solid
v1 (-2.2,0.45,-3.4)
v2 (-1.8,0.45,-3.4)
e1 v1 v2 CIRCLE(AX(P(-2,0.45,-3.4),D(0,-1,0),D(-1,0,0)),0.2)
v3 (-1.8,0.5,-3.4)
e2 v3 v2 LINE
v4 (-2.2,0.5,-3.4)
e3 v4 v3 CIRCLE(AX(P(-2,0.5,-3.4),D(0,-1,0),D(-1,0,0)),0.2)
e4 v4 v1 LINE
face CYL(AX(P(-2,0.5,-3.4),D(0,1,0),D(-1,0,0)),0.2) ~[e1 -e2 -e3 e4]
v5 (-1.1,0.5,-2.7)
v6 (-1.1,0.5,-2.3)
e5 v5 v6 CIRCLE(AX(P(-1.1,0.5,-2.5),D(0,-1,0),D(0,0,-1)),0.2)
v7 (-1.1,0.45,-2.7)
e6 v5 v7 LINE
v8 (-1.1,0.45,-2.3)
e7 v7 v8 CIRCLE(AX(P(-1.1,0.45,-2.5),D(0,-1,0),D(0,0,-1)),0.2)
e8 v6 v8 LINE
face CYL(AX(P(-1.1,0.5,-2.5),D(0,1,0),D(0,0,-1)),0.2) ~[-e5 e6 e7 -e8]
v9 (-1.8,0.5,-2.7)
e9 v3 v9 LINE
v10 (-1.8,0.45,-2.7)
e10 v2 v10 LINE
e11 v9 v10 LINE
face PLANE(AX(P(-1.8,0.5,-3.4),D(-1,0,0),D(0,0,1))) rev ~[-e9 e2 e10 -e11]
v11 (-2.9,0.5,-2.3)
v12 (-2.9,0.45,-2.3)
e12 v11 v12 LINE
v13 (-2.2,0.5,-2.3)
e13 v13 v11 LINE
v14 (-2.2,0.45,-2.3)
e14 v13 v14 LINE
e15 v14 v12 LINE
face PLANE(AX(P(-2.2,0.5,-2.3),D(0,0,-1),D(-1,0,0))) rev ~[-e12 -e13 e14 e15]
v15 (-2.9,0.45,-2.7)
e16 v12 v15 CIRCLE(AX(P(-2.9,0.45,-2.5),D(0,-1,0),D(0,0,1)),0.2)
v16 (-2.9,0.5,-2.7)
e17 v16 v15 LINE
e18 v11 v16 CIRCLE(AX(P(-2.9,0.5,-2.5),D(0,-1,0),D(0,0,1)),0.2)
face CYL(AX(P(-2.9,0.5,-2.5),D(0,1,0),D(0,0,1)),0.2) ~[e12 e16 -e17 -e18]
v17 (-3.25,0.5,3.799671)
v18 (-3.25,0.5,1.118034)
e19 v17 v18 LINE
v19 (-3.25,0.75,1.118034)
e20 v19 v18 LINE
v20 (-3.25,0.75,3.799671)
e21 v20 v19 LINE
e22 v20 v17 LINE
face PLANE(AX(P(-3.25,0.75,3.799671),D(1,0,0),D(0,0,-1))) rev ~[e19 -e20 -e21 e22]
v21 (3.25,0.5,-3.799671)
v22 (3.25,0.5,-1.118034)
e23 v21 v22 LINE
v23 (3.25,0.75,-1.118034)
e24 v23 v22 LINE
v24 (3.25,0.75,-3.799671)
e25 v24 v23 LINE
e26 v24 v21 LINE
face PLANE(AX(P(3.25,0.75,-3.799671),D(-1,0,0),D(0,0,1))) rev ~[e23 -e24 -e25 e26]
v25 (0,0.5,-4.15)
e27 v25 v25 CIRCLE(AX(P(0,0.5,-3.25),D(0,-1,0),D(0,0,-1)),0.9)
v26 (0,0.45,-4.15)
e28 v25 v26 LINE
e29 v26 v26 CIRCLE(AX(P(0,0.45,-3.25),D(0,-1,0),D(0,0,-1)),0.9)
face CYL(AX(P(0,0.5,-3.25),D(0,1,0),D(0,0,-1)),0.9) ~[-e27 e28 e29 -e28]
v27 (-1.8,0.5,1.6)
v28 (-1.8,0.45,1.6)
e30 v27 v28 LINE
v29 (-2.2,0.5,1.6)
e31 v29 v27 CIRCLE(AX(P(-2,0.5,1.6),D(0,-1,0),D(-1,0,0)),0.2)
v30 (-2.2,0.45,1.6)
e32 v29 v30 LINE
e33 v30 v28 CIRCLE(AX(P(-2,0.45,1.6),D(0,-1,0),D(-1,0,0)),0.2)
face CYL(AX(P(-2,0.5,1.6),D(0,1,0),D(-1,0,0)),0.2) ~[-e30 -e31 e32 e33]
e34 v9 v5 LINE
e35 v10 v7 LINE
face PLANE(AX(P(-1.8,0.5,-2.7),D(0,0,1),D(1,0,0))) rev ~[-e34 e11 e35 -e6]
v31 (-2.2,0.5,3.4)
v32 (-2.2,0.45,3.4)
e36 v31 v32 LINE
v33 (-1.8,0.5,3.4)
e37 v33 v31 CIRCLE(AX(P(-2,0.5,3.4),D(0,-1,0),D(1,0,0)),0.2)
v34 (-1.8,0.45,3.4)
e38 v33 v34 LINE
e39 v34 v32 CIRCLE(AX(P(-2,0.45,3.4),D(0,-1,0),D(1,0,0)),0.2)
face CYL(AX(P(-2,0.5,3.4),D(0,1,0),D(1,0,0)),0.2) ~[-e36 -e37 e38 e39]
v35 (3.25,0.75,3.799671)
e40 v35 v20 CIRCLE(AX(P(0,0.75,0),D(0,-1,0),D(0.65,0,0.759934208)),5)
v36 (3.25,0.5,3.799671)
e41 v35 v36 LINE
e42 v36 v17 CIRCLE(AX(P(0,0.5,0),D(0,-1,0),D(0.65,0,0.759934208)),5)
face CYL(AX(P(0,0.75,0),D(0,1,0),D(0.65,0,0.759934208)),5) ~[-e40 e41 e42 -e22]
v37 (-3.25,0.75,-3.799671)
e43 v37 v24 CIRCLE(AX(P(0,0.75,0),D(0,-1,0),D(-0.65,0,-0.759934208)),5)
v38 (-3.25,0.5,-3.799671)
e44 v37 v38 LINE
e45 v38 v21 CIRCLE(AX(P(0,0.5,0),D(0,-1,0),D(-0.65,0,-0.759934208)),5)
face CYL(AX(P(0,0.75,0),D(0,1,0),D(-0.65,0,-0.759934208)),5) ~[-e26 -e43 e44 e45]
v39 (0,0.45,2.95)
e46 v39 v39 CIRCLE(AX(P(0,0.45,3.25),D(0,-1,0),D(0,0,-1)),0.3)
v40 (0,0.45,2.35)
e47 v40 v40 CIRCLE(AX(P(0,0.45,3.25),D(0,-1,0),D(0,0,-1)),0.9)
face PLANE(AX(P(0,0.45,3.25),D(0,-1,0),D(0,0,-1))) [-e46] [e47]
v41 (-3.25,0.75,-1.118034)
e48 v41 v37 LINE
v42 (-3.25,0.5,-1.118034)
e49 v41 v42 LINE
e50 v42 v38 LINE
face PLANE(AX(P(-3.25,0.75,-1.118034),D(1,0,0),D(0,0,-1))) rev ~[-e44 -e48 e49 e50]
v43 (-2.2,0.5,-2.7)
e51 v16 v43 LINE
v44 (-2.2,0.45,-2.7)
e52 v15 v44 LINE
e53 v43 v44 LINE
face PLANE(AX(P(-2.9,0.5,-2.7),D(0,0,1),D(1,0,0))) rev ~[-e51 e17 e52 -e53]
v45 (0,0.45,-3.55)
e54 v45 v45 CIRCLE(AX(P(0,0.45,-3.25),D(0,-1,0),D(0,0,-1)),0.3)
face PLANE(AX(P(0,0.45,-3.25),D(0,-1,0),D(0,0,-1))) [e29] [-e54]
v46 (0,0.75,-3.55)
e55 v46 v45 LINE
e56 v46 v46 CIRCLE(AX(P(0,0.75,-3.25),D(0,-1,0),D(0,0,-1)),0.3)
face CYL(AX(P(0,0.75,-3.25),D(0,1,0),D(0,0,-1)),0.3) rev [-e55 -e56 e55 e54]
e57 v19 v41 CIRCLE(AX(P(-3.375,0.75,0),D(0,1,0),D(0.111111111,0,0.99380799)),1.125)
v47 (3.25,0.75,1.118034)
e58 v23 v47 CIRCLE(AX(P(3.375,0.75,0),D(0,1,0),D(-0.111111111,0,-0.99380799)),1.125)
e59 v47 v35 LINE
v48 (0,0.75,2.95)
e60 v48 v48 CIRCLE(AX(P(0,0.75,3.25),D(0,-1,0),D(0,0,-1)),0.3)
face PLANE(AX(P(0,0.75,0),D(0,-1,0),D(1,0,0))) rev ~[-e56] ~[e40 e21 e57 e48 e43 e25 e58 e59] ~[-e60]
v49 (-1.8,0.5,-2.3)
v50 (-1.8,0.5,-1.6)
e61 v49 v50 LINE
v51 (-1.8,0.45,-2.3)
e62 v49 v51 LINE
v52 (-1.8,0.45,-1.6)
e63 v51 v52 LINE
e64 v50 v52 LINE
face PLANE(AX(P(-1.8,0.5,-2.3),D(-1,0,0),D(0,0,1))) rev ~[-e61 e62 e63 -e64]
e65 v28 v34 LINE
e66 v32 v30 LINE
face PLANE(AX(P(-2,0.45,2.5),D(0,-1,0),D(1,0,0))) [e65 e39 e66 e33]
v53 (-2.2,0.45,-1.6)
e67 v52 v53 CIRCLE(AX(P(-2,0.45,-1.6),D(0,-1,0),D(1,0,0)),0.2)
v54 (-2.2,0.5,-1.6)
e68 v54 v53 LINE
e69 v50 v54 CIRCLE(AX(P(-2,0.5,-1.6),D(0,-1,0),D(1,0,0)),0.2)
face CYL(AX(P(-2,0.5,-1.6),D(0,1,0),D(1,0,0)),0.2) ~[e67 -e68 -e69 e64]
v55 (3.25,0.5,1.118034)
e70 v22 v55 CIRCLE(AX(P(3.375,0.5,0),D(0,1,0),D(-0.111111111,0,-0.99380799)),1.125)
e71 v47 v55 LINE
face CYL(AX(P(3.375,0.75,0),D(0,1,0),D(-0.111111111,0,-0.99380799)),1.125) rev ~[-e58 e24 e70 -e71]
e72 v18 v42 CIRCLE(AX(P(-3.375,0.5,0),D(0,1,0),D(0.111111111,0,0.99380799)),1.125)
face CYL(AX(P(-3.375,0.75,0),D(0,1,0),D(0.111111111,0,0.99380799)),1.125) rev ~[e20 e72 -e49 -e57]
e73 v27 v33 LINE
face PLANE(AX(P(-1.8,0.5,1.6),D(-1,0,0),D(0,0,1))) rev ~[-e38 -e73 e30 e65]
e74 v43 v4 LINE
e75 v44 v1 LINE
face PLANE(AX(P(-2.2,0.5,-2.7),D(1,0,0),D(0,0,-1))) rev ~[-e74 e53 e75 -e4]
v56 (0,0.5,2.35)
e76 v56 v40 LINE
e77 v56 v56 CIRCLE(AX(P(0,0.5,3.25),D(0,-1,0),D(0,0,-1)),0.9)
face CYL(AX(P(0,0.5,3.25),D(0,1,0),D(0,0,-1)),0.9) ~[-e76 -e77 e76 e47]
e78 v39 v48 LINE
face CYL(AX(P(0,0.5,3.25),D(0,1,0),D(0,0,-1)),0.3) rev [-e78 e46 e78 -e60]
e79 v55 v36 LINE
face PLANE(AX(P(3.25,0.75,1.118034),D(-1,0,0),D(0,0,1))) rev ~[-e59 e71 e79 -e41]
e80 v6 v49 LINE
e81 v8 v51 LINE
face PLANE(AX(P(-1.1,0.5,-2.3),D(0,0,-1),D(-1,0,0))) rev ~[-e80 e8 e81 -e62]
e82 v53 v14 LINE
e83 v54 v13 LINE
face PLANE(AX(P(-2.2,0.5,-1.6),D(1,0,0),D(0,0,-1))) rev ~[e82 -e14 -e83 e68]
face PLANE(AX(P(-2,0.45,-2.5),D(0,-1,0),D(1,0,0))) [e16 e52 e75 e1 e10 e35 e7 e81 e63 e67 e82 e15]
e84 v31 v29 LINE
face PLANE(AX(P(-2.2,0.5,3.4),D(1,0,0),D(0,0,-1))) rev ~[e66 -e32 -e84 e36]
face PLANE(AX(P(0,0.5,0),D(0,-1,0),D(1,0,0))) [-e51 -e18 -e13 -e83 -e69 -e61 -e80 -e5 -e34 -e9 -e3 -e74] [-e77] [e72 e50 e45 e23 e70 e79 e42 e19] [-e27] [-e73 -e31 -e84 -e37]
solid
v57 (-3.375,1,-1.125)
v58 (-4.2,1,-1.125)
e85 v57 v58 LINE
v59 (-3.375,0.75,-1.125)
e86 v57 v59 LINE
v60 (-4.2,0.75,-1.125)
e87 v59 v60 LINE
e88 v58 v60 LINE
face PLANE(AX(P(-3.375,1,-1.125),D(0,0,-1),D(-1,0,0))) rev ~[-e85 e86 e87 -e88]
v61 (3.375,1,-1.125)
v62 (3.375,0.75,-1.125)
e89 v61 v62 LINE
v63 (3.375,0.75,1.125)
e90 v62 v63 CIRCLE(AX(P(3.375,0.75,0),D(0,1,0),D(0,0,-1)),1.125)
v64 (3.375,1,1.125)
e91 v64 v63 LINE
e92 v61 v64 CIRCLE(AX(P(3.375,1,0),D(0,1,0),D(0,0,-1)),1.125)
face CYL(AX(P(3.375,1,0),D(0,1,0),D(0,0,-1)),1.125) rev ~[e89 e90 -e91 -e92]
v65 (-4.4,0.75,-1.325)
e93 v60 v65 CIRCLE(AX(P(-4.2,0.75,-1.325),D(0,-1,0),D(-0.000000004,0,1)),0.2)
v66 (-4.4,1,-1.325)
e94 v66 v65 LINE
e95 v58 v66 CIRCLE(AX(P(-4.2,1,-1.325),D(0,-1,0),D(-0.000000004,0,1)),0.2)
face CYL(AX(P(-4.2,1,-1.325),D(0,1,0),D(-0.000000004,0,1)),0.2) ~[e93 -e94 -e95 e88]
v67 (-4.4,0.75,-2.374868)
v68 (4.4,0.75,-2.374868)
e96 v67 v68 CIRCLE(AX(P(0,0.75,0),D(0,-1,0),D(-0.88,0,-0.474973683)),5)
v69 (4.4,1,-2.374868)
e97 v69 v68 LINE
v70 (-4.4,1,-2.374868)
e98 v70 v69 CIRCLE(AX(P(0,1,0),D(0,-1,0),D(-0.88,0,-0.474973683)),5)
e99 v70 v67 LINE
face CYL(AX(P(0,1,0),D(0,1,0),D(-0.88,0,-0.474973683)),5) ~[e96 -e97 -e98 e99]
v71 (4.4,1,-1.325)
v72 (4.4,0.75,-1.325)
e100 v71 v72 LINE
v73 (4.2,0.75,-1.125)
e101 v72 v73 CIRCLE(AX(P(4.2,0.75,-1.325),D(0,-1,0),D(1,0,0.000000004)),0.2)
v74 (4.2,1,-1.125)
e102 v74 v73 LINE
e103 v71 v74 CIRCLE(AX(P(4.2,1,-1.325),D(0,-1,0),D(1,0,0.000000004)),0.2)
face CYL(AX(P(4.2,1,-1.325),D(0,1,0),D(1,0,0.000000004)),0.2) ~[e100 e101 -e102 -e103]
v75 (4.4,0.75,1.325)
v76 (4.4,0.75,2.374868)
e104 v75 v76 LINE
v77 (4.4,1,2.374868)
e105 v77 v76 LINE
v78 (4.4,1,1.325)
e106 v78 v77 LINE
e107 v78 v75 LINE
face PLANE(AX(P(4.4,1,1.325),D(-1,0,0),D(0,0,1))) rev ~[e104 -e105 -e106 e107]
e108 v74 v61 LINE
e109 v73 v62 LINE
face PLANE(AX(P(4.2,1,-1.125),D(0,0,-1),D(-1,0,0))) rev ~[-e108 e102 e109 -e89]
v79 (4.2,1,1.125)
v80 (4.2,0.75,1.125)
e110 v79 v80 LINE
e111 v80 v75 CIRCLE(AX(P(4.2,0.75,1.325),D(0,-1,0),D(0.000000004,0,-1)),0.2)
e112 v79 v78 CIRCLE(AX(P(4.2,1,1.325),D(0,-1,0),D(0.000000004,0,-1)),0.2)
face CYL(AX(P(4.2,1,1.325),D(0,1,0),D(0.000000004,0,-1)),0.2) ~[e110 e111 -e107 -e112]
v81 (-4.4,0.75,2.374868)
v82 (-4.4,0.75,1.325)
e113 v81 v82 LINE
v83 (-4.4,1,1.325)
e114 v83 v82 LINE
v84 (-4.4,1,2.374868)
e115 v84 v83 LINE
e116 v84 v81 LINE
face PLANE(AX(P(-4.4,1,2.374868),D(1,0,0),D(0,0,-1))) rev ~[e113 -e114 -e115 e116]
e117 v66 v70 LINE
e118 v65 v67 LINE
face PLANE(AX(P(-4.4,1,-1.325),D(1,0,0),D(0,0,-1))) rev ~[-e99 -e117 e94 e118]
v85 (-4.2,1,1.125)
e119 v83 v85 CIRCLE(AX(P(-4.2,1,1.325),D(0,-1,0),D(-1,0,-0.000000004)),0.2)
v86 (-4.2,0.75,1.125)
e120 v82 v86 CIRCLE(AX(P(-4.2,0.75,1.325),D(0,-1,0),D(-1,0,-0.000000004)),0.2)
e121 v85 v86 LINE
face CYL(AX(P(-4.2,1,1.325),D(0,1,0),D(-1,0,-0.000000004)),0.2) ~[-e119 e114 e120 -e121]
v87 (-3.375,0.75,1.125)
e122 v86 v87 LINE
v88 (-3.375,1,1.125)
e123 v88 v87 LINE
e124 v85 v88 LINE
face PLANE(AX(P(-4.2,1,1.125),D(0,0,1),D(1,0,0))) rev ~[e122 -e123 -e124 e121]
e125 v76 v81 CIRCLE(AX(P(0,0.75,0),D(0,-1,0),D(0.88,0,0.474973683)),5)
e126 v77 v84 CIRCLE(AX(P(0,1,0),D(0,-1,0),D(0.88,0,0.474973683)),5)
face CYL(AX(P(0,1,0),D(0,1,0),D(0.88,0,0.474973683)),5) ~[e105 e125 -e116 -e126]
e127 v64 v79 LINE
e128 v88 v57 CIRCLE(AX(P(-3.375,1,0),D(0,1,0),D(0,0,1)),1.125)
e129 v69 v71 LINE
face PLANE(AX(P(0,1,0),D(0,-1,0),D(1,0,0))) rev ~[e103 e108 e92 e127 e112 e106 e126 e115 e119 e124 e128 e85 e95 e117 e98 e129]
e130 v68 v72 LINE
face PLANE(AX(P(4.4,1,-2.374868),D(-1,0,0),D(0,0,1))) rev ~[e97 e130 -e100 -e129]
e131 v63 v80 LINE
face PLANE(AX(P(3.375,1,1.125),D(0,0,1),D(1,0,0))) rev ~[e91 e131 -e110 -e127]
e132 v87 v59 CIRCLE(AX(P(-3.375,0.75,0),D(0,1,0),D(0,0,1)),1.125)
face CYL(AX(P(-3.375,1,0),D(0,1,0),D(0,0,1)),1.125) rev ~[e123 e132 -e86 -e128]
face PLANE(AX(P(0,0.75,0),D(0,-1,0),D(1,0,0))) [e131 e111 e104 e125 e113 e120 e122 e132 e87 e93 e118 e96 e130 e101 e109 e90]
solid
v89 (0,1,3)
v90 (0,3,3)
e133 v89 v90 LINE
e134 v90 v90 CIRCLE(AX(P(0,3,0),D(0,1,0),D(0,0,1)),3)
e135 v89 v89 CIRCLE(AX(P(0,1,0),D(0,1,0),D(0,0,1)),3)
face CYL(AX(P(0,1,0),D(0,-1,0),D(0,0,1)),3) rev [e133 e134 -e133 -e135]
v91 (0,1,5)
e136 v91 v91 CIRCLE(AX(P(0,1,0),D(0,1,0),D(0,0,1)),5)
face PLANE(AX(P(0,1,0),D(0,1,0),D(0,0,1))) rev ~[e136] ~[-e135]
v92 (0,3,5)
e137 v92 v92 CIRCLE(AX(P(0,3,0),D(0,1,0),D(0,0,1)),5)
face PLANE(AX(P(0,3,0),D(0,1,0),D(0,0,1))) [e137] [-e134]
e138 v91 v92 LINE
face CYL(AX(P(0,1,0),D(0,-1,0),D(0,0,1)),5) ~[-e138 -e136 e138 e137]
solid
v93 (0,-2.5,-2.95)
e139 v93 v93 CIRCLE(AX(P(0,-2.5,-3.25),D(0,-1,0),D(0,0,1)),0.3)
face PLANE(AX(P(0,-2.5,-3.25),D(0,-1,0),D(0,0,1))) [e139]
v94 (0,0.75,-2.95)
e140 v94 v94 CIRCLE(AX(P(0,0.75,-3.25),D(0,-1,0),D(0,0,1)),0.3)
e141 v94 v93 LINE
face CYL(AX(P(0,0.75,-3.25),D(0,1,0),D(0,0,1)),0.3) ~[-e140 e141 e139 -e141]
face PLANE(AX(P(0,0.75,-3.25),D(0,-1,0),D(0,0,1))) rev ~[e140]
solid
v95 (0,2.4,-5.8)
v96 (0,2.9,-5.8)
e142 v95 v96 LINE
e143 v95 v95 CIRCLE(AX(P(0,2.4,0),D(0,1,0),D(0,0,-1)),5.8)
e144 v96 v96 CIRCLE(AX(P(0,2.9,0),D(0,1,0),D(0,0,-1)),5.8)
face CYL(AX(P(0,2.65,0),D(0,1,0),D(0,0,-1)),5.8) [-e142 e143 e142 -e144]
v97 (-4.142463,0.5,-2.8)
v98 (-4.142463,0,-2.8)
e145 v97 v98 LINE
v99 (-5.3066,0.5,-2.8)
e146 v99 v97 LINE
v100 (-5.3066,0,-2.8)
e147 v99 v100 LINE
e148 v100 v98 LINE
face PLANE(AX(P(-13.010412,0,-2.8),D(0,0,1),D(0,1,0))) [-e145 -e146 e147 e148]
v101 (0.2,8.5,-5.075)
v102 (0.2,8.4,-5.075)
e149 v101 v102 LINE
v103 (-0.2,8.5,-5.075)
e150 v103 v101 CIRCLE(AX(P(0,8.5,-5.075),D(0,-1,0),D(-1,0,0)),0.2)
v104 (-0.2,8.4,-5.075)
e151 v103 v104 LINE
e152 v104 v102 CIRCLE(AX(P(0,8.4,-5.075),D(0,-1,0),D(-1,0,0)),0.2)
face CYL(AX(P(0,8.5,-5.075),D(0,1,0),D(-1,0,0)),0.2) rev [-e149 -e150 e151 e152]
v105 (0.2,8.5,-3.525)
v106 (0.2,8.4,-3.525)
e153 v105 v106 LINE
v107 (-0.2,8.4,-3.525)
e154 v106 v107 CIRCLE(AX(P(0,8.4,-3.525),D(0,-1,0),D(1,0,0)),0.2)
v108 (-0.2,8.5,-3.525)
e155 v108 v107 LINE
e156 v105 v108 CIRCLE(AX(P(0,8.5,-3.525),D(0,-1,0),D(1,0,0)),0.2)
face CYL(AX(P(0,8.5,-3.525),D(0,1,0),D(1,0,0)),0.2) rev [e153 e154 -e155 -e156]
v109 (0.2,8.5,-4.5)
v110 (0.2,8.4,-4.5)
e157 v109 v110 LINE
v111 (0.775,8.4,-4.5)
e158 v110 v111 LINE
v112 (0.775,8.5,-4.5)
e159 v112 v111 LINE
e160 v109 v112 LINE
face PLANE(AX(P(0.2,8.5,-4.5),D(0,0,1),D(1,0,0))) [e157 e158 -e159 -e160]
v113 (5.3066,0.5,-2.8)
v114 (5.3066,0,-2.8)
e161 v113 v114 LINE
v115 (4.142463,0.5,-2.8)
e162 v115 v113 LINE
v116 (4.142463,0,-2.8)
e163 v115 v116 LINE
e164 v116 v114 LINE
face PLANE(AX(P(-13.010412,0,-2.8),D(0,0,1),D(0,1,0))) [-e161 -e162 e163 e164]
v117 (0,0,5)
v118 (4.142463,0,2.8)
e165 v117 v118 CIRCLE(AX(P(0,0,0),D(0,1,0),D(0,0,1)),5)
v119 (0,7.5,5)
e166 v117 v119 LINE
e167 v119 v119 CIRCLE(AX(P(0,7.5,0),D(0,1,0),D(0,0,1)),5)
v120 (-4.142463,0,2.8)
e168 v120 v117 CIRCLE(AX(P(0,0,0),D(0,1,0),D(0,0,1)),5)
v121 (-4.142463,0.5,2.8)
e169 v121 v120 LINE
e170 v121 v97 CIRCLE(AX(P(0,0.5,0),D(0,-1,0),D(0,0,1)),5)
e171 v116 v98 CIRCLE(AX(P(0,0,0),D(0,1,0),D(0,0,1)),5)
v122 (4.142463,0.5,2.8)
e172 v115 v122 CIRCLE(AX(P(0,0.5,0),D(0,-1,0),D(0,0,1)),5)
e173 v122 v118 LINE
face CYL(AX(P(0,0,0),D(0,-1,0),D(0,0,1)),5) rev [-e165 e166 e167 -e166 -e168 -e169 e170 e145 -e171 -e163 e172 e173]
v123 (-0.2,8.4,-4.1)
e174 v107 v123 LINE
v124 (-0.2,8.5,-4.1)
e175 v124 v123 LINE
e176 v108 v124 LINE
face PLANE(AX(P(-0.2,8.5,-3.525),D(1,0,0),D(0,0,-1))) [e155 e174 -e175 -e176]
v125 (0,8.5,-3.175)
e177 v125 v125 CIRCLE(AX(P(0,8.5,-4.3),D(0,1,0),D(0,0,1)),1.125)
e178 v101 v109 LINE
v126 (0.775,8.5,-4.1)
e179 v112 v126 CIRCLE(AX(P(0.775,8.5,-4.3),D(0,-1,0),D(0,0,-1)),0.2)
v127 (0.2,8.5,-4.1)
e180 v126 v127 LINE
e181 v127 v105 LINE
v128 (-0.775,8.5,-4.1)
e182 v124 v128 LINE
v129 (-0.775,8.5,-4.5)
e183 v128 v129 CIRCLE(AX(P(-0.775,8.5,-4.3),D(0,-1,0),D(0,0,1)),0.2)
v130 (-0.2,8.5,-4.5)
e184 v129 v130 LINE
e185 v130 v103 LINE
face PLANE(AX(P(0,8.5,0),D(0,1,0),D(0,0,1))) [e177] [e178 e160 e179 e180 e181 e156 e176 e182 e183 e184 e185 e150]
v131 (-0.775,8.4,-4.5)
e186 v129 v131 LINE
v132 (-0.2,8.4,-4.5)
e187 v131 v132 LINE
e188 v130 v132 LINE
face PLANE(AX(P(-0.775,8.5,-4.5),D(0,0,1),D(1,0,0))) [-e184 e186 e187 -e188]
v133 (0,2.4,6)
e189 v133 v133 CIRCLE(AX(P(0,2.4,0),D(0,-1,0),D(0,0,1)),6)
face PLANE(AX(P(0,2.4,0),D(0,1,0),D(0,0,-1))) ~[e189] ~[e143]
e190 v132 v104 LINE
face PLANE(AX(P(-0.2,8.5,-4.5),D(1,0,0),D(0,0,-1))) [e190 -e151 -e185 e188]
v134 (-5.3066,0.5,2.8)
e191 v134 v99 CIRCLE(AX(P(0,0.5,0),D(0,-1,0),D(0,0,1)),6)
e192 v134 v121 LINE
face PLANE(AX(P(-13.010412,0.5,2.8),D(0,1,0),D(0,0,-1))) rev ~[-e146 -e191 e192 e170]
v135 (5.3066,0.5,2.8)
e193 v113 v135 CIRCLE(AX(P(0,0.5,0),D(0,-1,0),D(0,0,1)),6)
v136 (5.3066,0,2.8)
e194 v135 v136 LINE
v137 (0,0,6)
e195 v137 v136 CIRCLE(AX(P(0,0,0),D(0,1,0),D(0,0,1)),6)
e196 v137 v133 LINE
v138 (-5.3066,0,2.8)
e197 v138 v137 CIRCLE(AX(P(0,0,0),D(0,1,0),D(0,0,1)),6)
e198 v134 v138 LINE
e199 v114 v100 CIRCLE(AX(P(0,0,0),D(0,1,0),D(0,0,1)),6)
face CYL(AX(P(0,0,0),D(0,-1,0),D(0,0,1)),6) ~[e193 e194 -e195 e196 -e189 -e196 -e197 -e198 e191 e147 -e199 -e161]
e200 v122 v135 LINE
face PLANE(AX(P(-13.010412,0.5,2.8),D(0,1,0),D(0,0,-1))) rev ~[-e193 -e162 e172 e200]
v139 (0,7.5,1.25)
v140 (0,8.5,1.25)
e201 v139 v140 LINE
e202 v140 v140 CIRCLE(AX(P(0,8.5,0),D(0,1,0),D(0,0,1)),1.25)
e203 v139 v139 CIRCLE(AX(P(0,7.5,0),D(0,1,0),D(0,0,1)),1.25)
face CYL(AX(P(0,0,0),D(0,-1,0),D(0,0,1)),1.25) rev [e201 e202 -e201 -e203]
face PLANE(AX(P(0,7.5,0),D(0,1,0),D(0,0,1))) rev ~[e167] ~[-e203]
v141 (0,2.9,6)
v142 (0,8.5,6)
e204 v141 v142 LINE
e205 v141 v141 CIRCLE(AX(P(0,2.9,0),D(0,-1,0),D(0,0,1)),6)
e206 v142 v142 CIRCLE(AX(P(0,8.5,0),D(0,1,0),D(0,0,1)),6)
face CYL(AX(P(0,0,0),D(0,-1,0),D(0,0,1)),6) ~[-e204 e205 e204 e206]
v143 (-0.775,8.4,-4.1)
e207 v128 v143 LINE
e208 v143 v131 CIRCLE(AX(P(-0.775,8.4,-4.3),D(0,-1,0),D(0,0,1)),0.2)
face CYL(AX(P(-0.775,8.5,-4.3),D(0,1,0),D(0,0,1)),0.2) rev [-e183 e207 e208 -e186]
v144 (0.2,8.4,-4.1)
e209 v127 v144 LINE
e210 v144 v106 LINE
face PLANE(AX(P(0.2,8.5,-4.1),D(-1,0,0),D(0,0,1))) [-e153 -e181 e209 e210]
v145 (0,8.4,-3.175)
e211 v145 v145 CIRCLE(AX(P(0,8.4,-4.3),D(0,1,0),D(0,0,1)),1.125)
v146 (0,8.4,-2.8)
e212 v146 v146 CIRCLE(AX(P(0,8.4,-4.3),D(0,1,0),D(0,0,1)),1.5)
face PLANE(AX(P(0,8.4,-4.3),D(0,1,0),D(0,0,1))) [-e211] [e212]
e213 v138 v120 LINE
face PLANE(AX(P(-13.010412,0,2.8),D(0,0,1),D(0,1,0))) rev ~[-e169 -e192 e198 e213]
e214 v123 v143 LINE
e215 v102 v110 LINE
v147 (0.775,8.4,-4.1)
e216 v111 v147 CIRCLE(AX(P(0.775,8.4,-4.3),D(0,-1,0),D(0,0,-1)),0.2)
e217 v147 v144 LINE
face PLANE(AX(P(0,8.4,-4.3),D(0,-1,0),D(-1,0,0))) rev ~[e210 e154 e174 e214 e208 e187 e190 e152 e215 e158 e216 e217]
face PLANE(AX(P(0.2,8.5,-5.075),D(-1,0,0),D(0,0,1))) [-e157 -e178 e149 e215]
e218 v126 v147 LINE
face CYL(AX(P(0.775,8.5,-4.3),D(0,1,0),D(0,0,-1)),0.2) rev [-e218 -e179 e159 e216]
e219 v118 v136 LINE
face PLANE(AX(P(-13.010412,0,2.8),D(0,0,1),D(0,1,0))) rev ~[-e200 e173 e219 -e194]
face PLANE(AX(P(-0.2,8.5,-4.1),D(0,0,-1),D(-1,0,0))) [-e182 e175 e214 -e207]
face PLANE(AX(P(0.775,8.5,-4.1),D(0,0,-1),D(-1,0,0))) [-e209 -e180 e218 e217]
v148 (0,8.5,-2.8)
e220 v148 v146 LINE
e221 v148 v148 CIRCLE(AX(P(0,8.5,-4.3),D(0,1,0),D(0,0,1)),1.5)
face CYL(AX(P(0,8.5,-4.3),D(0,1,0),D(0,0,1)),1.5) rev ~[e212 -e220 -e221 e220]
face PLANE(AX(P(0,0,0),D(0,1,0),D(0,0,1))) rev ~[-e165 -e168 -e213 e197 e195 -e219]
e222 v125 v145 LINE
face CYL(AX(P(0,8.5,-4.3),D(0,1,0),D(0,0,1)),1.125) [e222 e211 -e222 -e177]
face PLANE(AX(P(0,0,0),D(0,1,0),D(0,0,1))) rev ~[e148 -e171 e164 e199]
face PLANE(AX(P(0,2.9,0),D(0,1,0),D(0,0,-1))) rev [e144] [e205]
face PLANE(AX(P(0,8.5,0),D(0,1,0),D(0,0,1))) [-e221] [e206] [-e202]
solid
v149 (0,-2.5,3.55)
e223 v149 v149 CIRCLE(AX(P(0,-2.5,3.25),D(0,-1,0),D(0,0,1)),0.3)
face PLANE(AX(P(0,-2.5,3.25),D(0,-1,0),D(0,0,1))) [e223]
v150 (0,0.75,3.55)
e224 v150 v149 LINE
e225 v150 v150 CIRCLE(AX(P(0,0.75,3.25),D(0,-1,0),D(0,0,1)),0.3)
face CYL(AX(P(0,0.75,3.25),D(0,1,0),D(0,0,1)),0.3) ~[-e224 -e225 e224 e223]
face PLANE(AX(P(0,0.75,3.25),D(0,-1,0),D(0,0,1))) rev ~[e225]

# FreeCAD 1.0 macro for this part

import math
import FreeCAD as App
import Part
import Sketcher
Q = App.Units.Quantity

doc = App.newDocument("Part")
body = doc.addObject("PartDesign::Body", "Body")

# Sketch on XZ plane
sketch1 = doc.addObject("Sketcher::SketchObject", "Sketch")
body.addObject(sketch1)
sketch1.AttachmentSupport = (doc.XZ_Plane, [""])
sketch1.MapMode = "FlatFace"
sketch1.addGeometry([
    Part.Circle(App.Vector(0, 0, 0), App.Vector(0, 0, 1), 6),
    Part.Circle(App.Vector(0, 0, 0), App.Vector(0, 0, 1), 1.2),
], False)
sketch1.addConstraint([
    Sketcher.Constraint("Coincident", 0, 3, -1, 1),
    Sketcher.Constraint("Coincident", 1, 3, -1, 1),
    Sketcher.Constraint("Diameter", 0, Q("12 mm")),
    Sketcher.Constraint("Diameter", 1, Q("2.5 mm")),
])
pad1 = doc.addObject("PartDesign::Pad", "Pad")
body.addObject(pad1)
pad1.Profile = sketch1
pad1.Length = 8.5
pad1.Reversed = True

# Sketch on XZ plane
sketch2 = doc.addObject("Sketcher::SketchObject", "Sketch001")
body.addObject(sketch2)
sketch2.AttachmentSupport = (doc.XZ_Plane, [""])
sketch2.MapMode = "FlatFace"
sketch2.addGeometry(Part.Circle(App.Vector(0, 0, 0), App.Vector(0, 0, 1), 5), False)
sketch2.addConstraint([
    Sketcher.Constraint("Coincident", 0, 3, -1, 1),
    Sketcher.Constraint("Diameter", 0, Q("10 mm")),
])
pocket1 = doc.addObject("PartDesign::Pocket", "Pocket")
body.addObject(pocket1)
pocket1.Profile = sketch2
pocket1.Length = 7.5

# Sketch on YZ plane
sketch3 = doc.addObject("Sketcher::SketchObject", "Sketch002")
body.addObject(sketch3)
sketch3.AttachmentSupport = (doc.YZ_Plane, [""])
sketch3.MapMode = "FlatFace"
sketch3.addGeometry([
    Part.LineSegment(App.Vector(0.5, 2.8, 0), App.Vector(0, 2.8, 0)),
    Part.LineSegment(App.Vector(0, 2.8, 0), App.Vector(0, -2.8, 0)),
    Part.LineSegment(App.Vector(0, -2.8, 0), App.Vector(0.5, -2.8, 0)),
    Part.LineSegment(App.Vector(0.5, -2.8, 0), App.Vector(0.5, 2.8, 0)),
], False)
sketch3.addConstraint([
    Sketcher.Constraint("Coincident", 0, 2, 1, 1),
    Sketcher.Constraint("Coincident", 1, 2, 2, 1),
    Sketcher.Constraint("Coincident", 2, 2, 3, 1),
    Sketcher.Constraint("Coincident", 3, 2, 0, 1),
    Sketcher.Constraint("Horizontal", 0),
    Sketcher.Constraint("Vertical", 1),
    Sketcher.Constraint("Horizontal", 2),
    Sketcher.Constraint("Vertical", 3),
    Sketcher.Constraint("Symmetric", 0, 2, 1, 2, -1, 1),
    Sketcher.Constraint("DistanceX", 0, 2, 0, 1, Q("0.5 mm")),
    Sketcher.Constraint("DistanceY", 1, 2, 1, 1, Q("5.6 mm")),
])
pocket2 = doc.addObject("PartDesign::Pocket", "Pocket001")
body.addObject(pocket2)
pocket2.Profile = sketch3
pocket2.Type = "ThroughAll"
pocket2.Midplane = True

# Sketch on YZ plane
sketch4 = doc.addObject("Sketcher::SketchObject", "Sketch003")
body.addObject(sketch4)
sketch4.AttachmentSupport = (doc.YZ_Plane, [""])
sketch4.MapMode = "FlatFace"
sketch4.addGeometry([
    Part.LineSegment(App.Vector(2.9, -5.8, 0), App.Vector(2.4, -5.8, 0)),
    Part.LineSegment(App.Vector(2.4, -5.8, 0), App.Vector(2.4, -7.2, 0)),
    Part.LineSegment(App.Vector(2.4, -7.2, 0), App.Vector(2.9, -7.2, 0)),
    Part.LineSegment(App.Vector(2.9, -7.2, 0), App.Vector(2.9, -5.8, 0)),
], False)
sketch4.addConstraint([
    Sketcher.Constraint("Coincident", 0, 2, 1, 1),
    Sketcher.Constraint("Coincident", 1, 2, 2, 1),
    Sketcher.Constraint("Coincident", 2, 2, 3, 1),
    Sketcher.Constraint("Coincident", 3, 2, 0, 1),
    Sketcher.Constraint("Horizontal", 0),
    Sketcher.Constraint("Vertical", 1),
    Sketcher.Constraint("Horizontal", 2),
    Sketcher.Constraint("Vertical", 3),
    Sketcher.Constraint("DistanceX", 0, 2, 0, 1, Q("0.5 mm")),
    Sketcher.Constraint("DistanceX", -1, 1, 0, 2, Q("2.4 mm")),
    Sketcher.Constraint("DistanceY", 0, 2, -1, 1, Q("5.8 mm")),
    Sketcher.Constraint("DistanceY", 1, 2, 1, 1, Q("1.423746 mm")),
])
groove = doc.addObject("PartDesign::Groove", "Groove")
body.addObject(groove)
groove.Profile = sketch4
groove.ReferenceAxis = (sketch4, ["H_Axis"])
groove.Angle = 360

# Sketch on XZ plane
sketch5 = doc.addObject("Sketcher::SketchObject", "Sketch004")
body.addObject(sketch5)
sketch5.AttachmentSupport = (doc.XZ_Plane, [""])
sketch5.MapMode = "FlatFace"
sketch5.AttachmentOffset = App.Placement(App.Vector(0, 0, -8.5), App.Rotation())
sketch5.addGeometry([
    Part.Circle(App.Vector(0, -4.3, 0), App.Vector(0, 0, 1), 1.5),  # 0
    Part.Circle(App.Vector(0, -4.3, 0), App.Vector(0, 0, 1), 1.12),  # 1
    Part.ArcOfCircle(Part.Circle(App.Vector(0, -3.52, 0), App.Vector(0, 0, 1), 0.2), math.radians(0), math.radians(180)),  # 2
    Part.LineSegment(App.Vector(0.2, -3.52, 0), App.Vector(0.2, -4.1, 0)),  # 3
    Part.LineSegment(App.Vector(0.2, -4.1, 0), App.Vector(0.78, -4.1, 0)),  # 4
    Part.ArcOfCircle(Part.Circle(App.Vector(0.78, -4.3, 0), App.Vector(0, 0, 1), 0.2), math.radians(-90), math.radians(90)),  # 5
    Part.LineSegment(App.Vector(0.78, -4.5, 0), App.Vector(0.2, -4.5, 0)),  # 6
    Part.LineSegment(App.Vector(0.2, -4.5, 0), App.Vector(0.2, -5.08, 0)),  # 7
    Part.ArcOfCircle(Part.Circle(App.Vector(0, -5.08, 0), App.Vector(0, 0, 1), 0.2), math.radians(180), math.radians(360)),  # 8
    Part.LineSegment(App.Vector(-0.2, -5.08, 0), App.Vector(-0.2, -4.5, 0)),  # 9
    Part.LineSegment(App.Vector(-0.2, -4.5, 0), App.Vector(-0.78, -4.5, 0)),  # 10
    Part.ArcOfCircle(Part.Circle(App.Vector(-0.78, -4.3, 0), App.Vector(0, 0, 1), 0.2), math.radians(90), math.radians(270)),  # 11
    Part.LineSegment(App.Vector(-0.78, -4.1, 0), App.Vector(-0.2, -4.1, 0)),  # 12
    Part.LineSegment(App.Vector(-0.2, -4.1, 0), App.Vector(-0.2, -3.52, 0)),  # 13
], False)
sketch5.addConstraint([
    Sketcher.Constraint("Tangent", 2, 1, 3, 1),
    Sketcher.Constraint("Coincident", 3, 2, 4, 1),
    Sketcher.Constraint("Tangent", 4, 2, 5, 2),
    Sketcher.Constraint("Tangent", 5, 1, 6, 1),
    Sketcher.Constraint("Coincident", 6, 2, 7, 1),
    Sketcher.Constraint("Tangent", 7, 2, 8, 2),
    Sketcher.Constraint("Tangent", 8, 1, 9, 1),
    Sketcher.Constraint("Coincident", 9, 2, 10, 1),
    Sketcher.Constraint("Tangent", 10, 2, 11, 2),
    Sketcher.Constraint("Tangent", 11, 1, 12, 1),
    Sketcher.Constraint("Coincident", 12, 2, 13, 1),
    Sketcher.Constraint("Tangent", 13, 2, 2, 2),
    Sketcher.Constraint("Vertical", 3),
    Sketcher.Constraint("Horizontal", 4),
    Sketcher.Constraint("Horizontal", 6),
    Sketcher.Constraint("Vertical", 7),
    Sketcher.Constraint("Vertical", 9),
    Sketcher.Constraint("Horizontal", 10),
    Sketcher.Constraint("Horizontal", 12),
    Sketcher.Constraint("Vertical", 13),
    Sketcher.Constraint("Coincident", 1, 3, 0, 3),
    Sketcher.Constraint("Equal", 2, 5),
    Sketcher.Constraint("Equal", 5, 8),
    Sketcher.Constraint("Equal", 8, 11),
    Sketcher.Constraint("Symmetric", 5, 3, 11, 3, -2),
    Sketcher.Constraint("PointOnObject", 0, 3, -2),
    Sketcher.Constraint("PointOnObject", 2, 3, -2),
    Sketcher.Constraint("PointOnObject", 8, 3, -2),
    Sketcher.Constraint("Horizontal", 1, 3, 5, 3),
    Sketcher.Constraint("Equal", 12, 3),
    Sketcher.Constraint("Equal", 3, 7),
    Sketcher.Constraint("Diameter", 0, Q("3 mm")),
    Sketcher.Constraint("Radius", 2, Q("0.2 mm")),
    Sketcher.Constraint("Diameter", 1, Q("2.25 mm")),
    Sketcher.Constraint("DistanceY", 0, 3, -1, 1, Q("4.3 mm")),
    Sketcher.Constraint("DistanceX", 4, 1, 4, 2, Q("0.575 mm")),
])
pocket3 = doc.addObject("PartDesign::Pocket", "Pocket002")
body.addObject(pocket3)
pocket3.Profile = sketch5
pocket3.Length = 0.1
pocket3.Reversed = True
body2 = doc.addObject("PartDesign::Body", "Body001")

# Sketch on XZ plane
sketch6 = doc.addObject("Sketcher::SketchObject", "Sketch005")
body2.addObject(sketch6)
sketch6.AttachmentSupport = (doc.getObject("XZ_Plane001"), [""])
sketch6.MapMode = "FlatFace"
sketch6.AttachmentOffset = App.Placement(App.Vector(0, 0, -1), App.Rotation())
sketch6.addGeometry([
    Part.Circle(App.Vector(0, 0, 0), App.Vector(0, 0, 1), 5),
    Part.Circle(App.Vector(0, 0, 0), App.Vector(0, 0, 1), 3),
], False)
sketch6.addConstraint([
    Sketcher.Constraint("Coincident", 0, 3, -1, 1),
    Sketcher.Constraint("Coincident", 1, 3, -1, 1),
    Sketcher.Constraint("Diameter", 0, Q("10 mm")),
    Sketcher.Constraint("Diameter", 1, Q("6 mm")),
])
pad2 = doc.addObject("PartDesign::Pad", "Pad001")
body2.addObject(pad2)
pad2.Profile = sketch6
pad2.Length = 2
pad2.Reversed = True
body3 = doc.addObject("PartDesign::Body", "Body002")

# Sketch on XZ plane
sketch7 = doc.addObject("Sketcher::SketchObject", "Sketch006")
body3.addObject(sketch7)
sketch7.AttachmentSupport = (doc.getObject("XZ_Plane002"), [""])
sketch7.MapMode = "FlatFace"
sketch7.AttachmentOffset = App.Placement(App.Vector(0, 0, -1), App.Rotation())
sketch7.addGeometry([
    Part.LineSegment(App.Vector(3.38, 1.12, 0), App.Vector(4.2, 1.12, 0)),  # 0
    Part.ArcOfCircle(Part.Circle(App.Vector(4.2, 1.33, 0), App.Vector(0, 0, 1), 0.2), math.radians(-90), math.radians(0)),  # 1
    Part.LineSegment(App.Vector(4.4, 1.32, 0), App.Vector(4.4, 2.37, 0)),  # 2
    Part.ArcOfCircle(Part.Circle(App.Vector(0, 0, 0), App.Vector(0, 0, 1), 5), math.radians(28), math.radians(152)),  # 3
    Part.LineSegment(App.Vector(-4.4, 2.37, 0), App.Vector(-4.4, 1.32, 0)),  # 4
    Part.ArcOfCircle(Part.Circle(App.Vector(-4.2, 1.33, 0), App.Vector(0, 0, 1), 0.2), math.radians(-180), math.radians(-90)),  # 5
    Part.LineSegment(App.Vector(-4.2, 1.12, 0), App.Vector(-3.38, 1.12, 0)),  # 6
    Part.ArcOfCircle(Part.Circle(App.Vector(-3.38, 0, 0), App.Vector(0, 0, 1), 1.12), math.radians(-90), math.radians(90)),  # 7
    Part.LineSegment(App.Vector(-3.38, -1.12, 0), App.Vector(-4.2, -1.12, 0)),  # 8
    Part.ArcOfCircle(Part.Circle(App.Vector(-4.2, -1.33, 0), App.Vector(0, 0, 1), 0.2), math.radians(90), math.radians(180)),  # 9
    Part.LineSegment(App.Vector(-4.4, -1.32, 0), App.Vector(-4.4, -2.37, 0)),  # 10
    Part.ArcOfCircle(Part.Circle(App.Vector(0, 0, 0), App.Vector(0, 0, 1), 5), math.radians(-152), math.radians(-28)),  # 11
    Part.LineSegment(App.Vector(4.4, -2.37, 0), App.Vector(4.4, -1.32, 0)),  # 12
    Part.ArcOfCircle(Part.Circle(App.Vector(4.2, -1.33, 0), App.Vector(0, 0, 1), 0.2), math.radians(0), math.radians(90)),  # 13
    Part.LineSegment(App.Vector(4.2, -1.12, 0), App.Vector(3.38, -1.12, 0)),  # 14
    Part.ArcOfCircle(Part.Circle(App.Vector(3.38, 0, 0), App.Vector(0, 0, 1), 1.12), math.radians(90), math.radians(270)),  # 15
], False)
sketch7.addConstraint([
    Sketcher.Constraint("Tangent", 0, 2, 1, 1),
    Sketcher.Constraint("Tangent", 1, 2, 2, 1),
    Sketcher.Constraint("Coincident", 2, 2, 3, 1),
    Sketcher.Constraint("Coincident", 3, 2, 4, 1),
    Sketcher.Constraint("Tangent", 4, 2, 5, 1),
    Sketcher.Constraint("Tangent", 5, 2, 6, 1),
    Sketcher.Constraint("Tangent", 6, 2, 7, 2),
    Sketcher.Constraint("Tangent", 7, 1, 8, 1),
    Sketcher.Constraint("Tangent", 8, 2, 9, 1),
    Sketcher.Constraint("Tangent", 9, 2, 10, 1),
    Sketcher.Constraint("Coincident", 10, 2, 11, 1),
    Sketcher.Constraint("Coincident", 11, 2, 12, 1),
    Sketcher.Constraint("Tangent", 12, 2, 13, 1),
    Sketcher.Constraint("Tangent", 13, 2, 14, 1),
    Sketcher.Constraint("Tangent", 14, 2, 15, 2),
    Sketcher.Constraint("Tangent", 15, 1, 0, 1),
    Sketcher.Constraint("Horizontal", 0),
    Sketcher.Constraint("Vertical", 2),
    Sketcher.Constraint("Vertical", 4),
    Sketcher.Constraint("Horizontal", 6),
    Sketcher.Constraint("Horizontal", 8),
    Sketcher.Constraint("Vertical", 10),
    Sketcher.Constraint("Vertical", 12),
    Sketcher.Constraint("Horizontal", 14),
    Sketcher.Constraint("Coincident", 3, 3, -1, 1),
    Sketcher.Constraint("Coincident", 11, 3, -1, 1),
    Sketcher.Constraint("Equal", 1, 5),
    Sketcher.Constraint("Equal", 5, 9),
    Sketcher.Constraint("Equal", 3, 11),
    Sketcher.Constraint("Equal", 9, 13),
    Sketcher.Constraint("Equal", 7, 15),
    Sketcher.Constraint("Symmetric", 1, 3, 9, 3, -1, 1),
    Sketcher.Constraint("Symmetric", 1, 3, 5, 3, -2),
    Sketcher.Constraint("Horizontal", 10, 2, 11, 2),
    Sketcher.Constraint("Equal", 0, 6),
    Sketcher.Constraint("Radius", 3, Q("5 mm")),
    Sketcher.Constraint("Radius", 1, Q("0.2 mm")),
    Sketcher.Constraint("Radius", 7, Q("1.125 mm")),
    Sketcher.Constraint("DistanceX", -1, 1, 1, 3, Q("4.2 mm")),
    Sketcher.Constraint("DistanceX", 0, 1, 0, 2, Q("0.825 mm")),
])
pad3 = doc.addObject("PartDesign::Pad", "Pad002")
body3.addObject(pad3)
pad3.Profile = sketch7
pad3.Length = 0.25
body4 = doc.addObject("PartDesign::Body", "Body003")

# Sketch on XZ plane
sketch8 = doc.addObject("Sketcher::SketchObject", "Sketch007")
body4.addObject(sketch8)
sketch8.AttachmentSupport = (doc.getObject("XZ_Plane003"), [""])
sketch8.MapMode = "FlatFace"
sketch8.AttachmentOffset = App.Placement(App.Vector(0, 0, -0.75), App.Rotation())
sketch8.addGeometry([
    Part.LineSegment(App.Vector(-3.25, 3.8, 0), App.Vector(-3.25, 1.12, 0)),  # 0
    Part.ArcOfCircle(Part.Circle(App.Vector(-3.38, 0, 0), App.Vector(0, 0, 1), 1.12), math.radians(-84), math.radians(84)),  # 1
    Part.LineSegment(App.Vector(-3.25, -1.12, 0), App.Vector(-3.25, -3.8, 0)),  # 2
    Part.ArcOfCircle(Part.Circle(App.Vector(0, 0, 0), App.Vector(0, 0, 1), 5), math.radians(-131), math.radians(-49)),  # 3
    Part.LineSegment(App.Vector(3.25, -3.8, 0), App.Vector(3.25, -1.12, 0)),  # 4
    Part.ArcOfCircle(Part.Circle(App.Vector(3.38, 0, 0), App.Vector(0, 0, 1), 1.12), math.radians(96), math.radians(264)),  # 5
    Part.LineSegment(App.Vector(3.25, 1.12, 0), App.Vector(3.25, 3.8, 0)),  # 6
    Part.ArcOfCircle(Part.Circle(App.Vector(0, 0, 0), App.Vector(0, 0, 1), 5), math.radians(49), math.radians(131)),  # 7
    Part.Circle(App.Vector(0, -3.25, 0), App.Vector(0, 0, 1), 0.3),  # 8
    Part.Circle(App.Vector(0, 3.25, 0), App.Vector(0, 0, 1), 0.3),  # 9
], False)
sketch8.addConstraint([
    Sketcher.Constraint("Coincident", 0, 2, 1, 2),
    Sketcher.Constraint("Coincident", 1, 1, 2, 1),
    Sketcher.Constraint("Coincident", 2, 2, 3, 1),
    Sketcher.Constraint("Coincident", 3, 2, 4, 1),
    Sketcher.Constraint("Coincident", 4, 2, 5, 2),
    Sketcher.Constraint("Coincident", 5, 1, 6, 1),
    Sketcher.Constraint("Coincident", 6, 2, 7, 1),
    Sketcher.Constraint("Coincident", 7, 2, 0, 1),
    Sketcher.Constraint("Vertical", 0),
    Sketcher.Constraint("Vertical", 2),
    Sketcher.Constraint("Vertical", 4),
    Sketcher.Constraint("Vertical", 6),
    Sketcher.Constraint("Coincident", 3, 3, -1, 1),
    Sketcher.Constraint("Coincident", 7, 3, -1, 1),
    Sketcher.Constraint("Equal", 1, 5),
    Sketcher.Constraint("Equal", 3, 7),
    Sketcher.Constraint("Equal", 8, 9),
    Sketcher.Constraint("Symmetric", 1, 3, 5, 3, -1, 1),
    Sketcher.Constraint("Symmetric", 8, 3, 9, 3, -1, 1),
    Sketcher.Constraint("Symmetric", 1, 1, 4, 2, -2),
    Sketcher.Constraint("PointOnObject", 8, 3, -2),
    Sketcher.Constraint("Horizontal", 0, 2, 5, 1),
    Sketcher.Constraint("Vertical", 0, 2, 1, 1),
    Sketcher.Constraint("Radius", 3, Q("5 mm")),
    Sketcher.Constraint("Diameter", 8, Q("0.6 mm")),
    Sketcher.Constraint("Radius", 1, Q("1.125 mm")),
    Sketcher.Constraint("DistanceY", 8, 3, 9, 3, Q("6.5 mm")),
    Sketcher.Constraint("DistanceX", 2, 2, 3, 2, Q("6.5 mm")),
    Sketcher.Constraint("DistanceX", 1, 3, 5, 3, Q("6.75 mm")),
])
pad4 = doc.addObject("PartDesign::Pad", "Pad003")
body4.addObject(pad4)
pad4.Profile = sketch8
pad4.Length = 0.25

# Sketch on XZ plane
sketch9 = doc.addObject("Sketcher::SketchObject", "Sketch008")
body4.addObject(sketch9)
sketch9.AttachmentSupport = (doc.getObject("XZ_Plane003"), [""])
sketch9.MapMode = "FlatFace"
sketch9.AttachmentOffset = App.Placement(App.Vector(0, 0, -0.5), App.Rotation())
sketch9.addGeometry([
    Part.Circle(App.Vector(0, 3.25, 0), App.Vector(0, 0, 1), 0.9),  # 0
    Part.Circle(App.Vector(0, 3.25, 0), App.Vector(0, 0, 1), 0.3),  # 1
    Part.Circle(App.Vector(0, -3.25, 0), App.Vector(0, 0, 1), 0.9),  # 2
    Part.Circle(App.Vector(0, -3.25, 0), App.Vector(0, 0, 1), 0.3),  # 3
    Part.LineSegment(App.Vector(-2.9, -2.7, 0), App.Vector(-2.2, -2.7, 0)),  # 4
    Part.LineSegment(App.Vector(-2.2, -2.7, 0), App.Vector(-2.2, -3.4, 0)),  # 5
    Part.ArcOfCircle(Part.Circle(App.Vector(-2, -3.4, 0), App.Vector(0, 0, 1), 0.2), math.radians(180), math.radians(360)),  # 6
    Part.LineSegment(App.Vector(-1.8, -3.4, 0), App.Vector(-1.8, -2.7, 0)),  # 7
    Part.LineSegment(App.Vector(-1.8, -2.7, 0), App.Vector(-1.1, -2.7, 0)),  # 8
    Part.ArcOfCircle(Part.Circle(App.Vector(-1.1, -2.5, 0), App.Vector(0, 0, 1), 0.2), math.radians(-90), math.radians(90)),  # 9
    Part.LineSegment(App.Vector(-1.1, -2.3, 0), App.Vector(-1.8, -2.3, 0)),  # 10
    Part.LineSegment(App.Vector(-1.8, -2.3, 0), App.Vector(-1.8, -1.6, 0)),  # 11
    Part.ArcOfCircle(Part.Circle(App.Vector(-2, -1.6, 0), App.Vector(0, 0, 1), 0.2), math.radians(0), math.radians(180)),  # 12
    Part.LineSegment(App.Vector(-2.2, -1.6, 0), App.Vector(-2.2, -2.3, 0)),  # 13
    Part.LineSegment(App.Vector(-2.2, -2.3, 0), App.Vector(-2.9, -2.3, 0)),  # 14
    Part.ArcOfCircle(Part.Circle(App.Vector(-2.9, -2.5, 0), App.Vector(0, 0, 1), 0.2), math.radians(90), math.radians(270)),  # 15
    Part.LineSegment(App.Vector(-2.2, 3.4, 0), App.Vector(-2.2, 1.6, 0)),  # 16
    Part.ArcOfCircle(Part.Circle(App.Vector(-2, 1.6, 0), App.Vector(0, 0, 1), 0.2), math.radians(180), math.radians(360)),  # 17
    Part.LineSegment(App.Vector(-1.8, 1.6, 0), App.Vector(-1.8, 3.4, 0)),  # 18
    Part.ArcOfCircle(Part.Circle(App.Vector(-2, 3.4, 0), App.Vector(0, 0, 1), 0.2), math.radians(0), math.radians(180)),  # 19
], False)
sketch9.addConstraint([
    Sketcher.Constraint("Coincident", 4, 2, 5, 1),
    Sketcher.Constraint("Tangent", 5, 2, 6, 1),
    Sketcher.Constraint("Tangent", 6, 2, 7, 1),
    Sketcher.Constraint("Coincident", 7, 2, 8, 1),
    Sketcher.Constraint("Tangent", 8, 2, 9, 1),
    Sketcher.Constraint("Tangent", 9, 2, 10, 1),
    Sketcher.Constraint("Coincident", 10, 2, 11, 1),
    Sketcher.Constraint("Tangent", 11, 2, 12, 1),
    Sketcher.Constraint("Tangent", 12, 2, 13, 1),
    Sketcher.Constraint("Coincident", 13, 2, 14, 1),
    Sketcher.Constraint("Tangent", 14, 2, 15, 1),
    Sketcher.Constraint("Tangent", 15, 2, 4, 1),
    Sketcher.Constraint("Tangent", 16, 2, 17, 1),
    Sketcher.Constraint("Tangent", 17, 2, 18, 1),
    Sketcher.Constraint("Tangent", 18, 2, 19, 1),
    Sketcher.Constraint("Tangent", 19, 2, 16, 1),
    Sketcher.Constraint("Horizontal", 4),
    Sketcher.Constraint("Vertical", 5),
    Sketcher.Constraint("Vertical", 7),
    Sketcher.Constraint("Horizontal", 8),
    Sketcher.Constraint("Horizontal", 10),
    Sketcher.Constraint("Vertical", 11),
    Sketcher.Constraint("Vertical", 13),
    Sketcher.Constraint("Horizontal", 14),
    Sketcher.Constraint("Vertical", 16),
    Sketcher.Constraint("Vertical", 18),
    Sketcher.Constraint("Coincident", 1, 3, 0, 3),
    Sketcher.Constraint("Coincident", 3, 3, 2, 3),
    Sketcher.Constraint("Equal", 0, 2),
    Sketcher.Constraint("Equal", 1, 3),
    Sketcher.Constraint("Equal", 6, 9),
    Sketcher.Constraint("Equal", 9, 12),
    Sketcher.Constraint("Equal", 12, 15),
    Sketcher.Constraint("Equal", 15, 17),
    Sketcher.Constraint("Symmetric", 0, 3, 2, 3, -1, 1),
    Sketcher.Constraint("Symmetric", 12, 3, 17, 3, -1),
    Sketcher.Constraint("Symmetric", 6, 3, 19, 3, -1),
    Sketcher.Constraint("PointOnObject", 0, 3, -2),
    Sketcher.Constraint("Horizontal", 9, 3, 15, 3),
    Sketcher.Constraint("Equal", 4, 8),
    Sketcher.Constraint("Equal", 14, 5),
    Sketcher.Constraint("Equal", 7, 11),
    Sketcher.Constraint("Diameter", 0, Q("1.8 mm")),
    Sketcher.Constraint("Diameter", 1, Q("0.6 mm")),
    Sketcher.Constraint("Radius", 6, Q("0.2 mm")),
    Sketcher.Constraint("DistanceX", 4, 1, 4, 2, Q("0.7 mm")),
    Sketcher.Constraint("DistanceX", 6, 3, -1, 1, Q("2 mm")),
    Sketcher.Constraint("DistanceY", 12, 3, 19, 3, Q("5 mm")),
    Sketcher.Constraint("DistanceY", 2, 3, 0, 3, Q("6.5 mm")),
])
pad5 = doc.addObject("PartDesign::Pad", "Pad004")
body4.addObject(pad5)
pad5.Profile = sketch9
pad5.Length = 0.05
body5 = doc.addObject("PartDesign::Body", "Body004")

# Sketch on XZ plane
sketch10 = doc.addObject("Sketcher::SketchObject", "Sketch009")
body5.addObject(sketch10)
sketch10.AttachmentSupport = (doc.getObject("XZ_Plane004"), [""])
sketch10.MapMode = "FlatFace"
sketch10.AttachmentOffset = App.Placement(App.Vector(0, 0, -0.75), App.Rotation())
sketch10.addGeometry(Part.Circle(App.Vector(0, 3.25, 0), App.Vector(0, 0, 1), 0.3), False)
sketch10.addConstraint([
    Sketcher.Constraint("PointOnObject", 0, 3, -2),
    Sketcher.Constraint("Diameter", 0, Q("0.6 mm")),
    Sketcher.Constraint("DistanceY", -1, 1, 0, 3, Q("3.25 mm")),
])
pad6 = doc.addObject("PartDesign::Pad", "Pad005")
body5.addObject(pad6)
pad6.Profile = sketch10
pad6.Length = 3.25
body6 = doc.addObject("PartDesign::Body", "Body005")

# Sketch on XZ plane
sketch11 = doc.addObject("Sketcher::SketchObject", "Sketch010")
body6.addObject(sketch11)
sketch11.AttachmentSupport = (doc.getObject("XZ_Plane005"), [""])
sketch11.MapMode = "FlatFace"
sketch11.AttachmentOffset = App.Placement(App.Vector(0, 0, -0.75), App.Rotation())
sketch11.addGeometry(Part.Circle(App.Vector(0, -3.25, 0), App.Vector(0, 0, 1), 0.3), False)
sketch11.addConstraint([
    Sketcher.Constraint("PointOnObject", 0, 3, -2),
    Sketcher.Constraint("Diameter", 0, Q("0.6 mm")),
    Sketcher.Constraint("DistanceY", 0, 3, -1, 1, Q("3.25 mm")),
])
pad7 = doc.addObject("PartDesign::Pad", "Pad006")
body6.addObject(pad7)
pad7.Profile = sketch11
pad7.Length = 3.25

doc.recompute()
